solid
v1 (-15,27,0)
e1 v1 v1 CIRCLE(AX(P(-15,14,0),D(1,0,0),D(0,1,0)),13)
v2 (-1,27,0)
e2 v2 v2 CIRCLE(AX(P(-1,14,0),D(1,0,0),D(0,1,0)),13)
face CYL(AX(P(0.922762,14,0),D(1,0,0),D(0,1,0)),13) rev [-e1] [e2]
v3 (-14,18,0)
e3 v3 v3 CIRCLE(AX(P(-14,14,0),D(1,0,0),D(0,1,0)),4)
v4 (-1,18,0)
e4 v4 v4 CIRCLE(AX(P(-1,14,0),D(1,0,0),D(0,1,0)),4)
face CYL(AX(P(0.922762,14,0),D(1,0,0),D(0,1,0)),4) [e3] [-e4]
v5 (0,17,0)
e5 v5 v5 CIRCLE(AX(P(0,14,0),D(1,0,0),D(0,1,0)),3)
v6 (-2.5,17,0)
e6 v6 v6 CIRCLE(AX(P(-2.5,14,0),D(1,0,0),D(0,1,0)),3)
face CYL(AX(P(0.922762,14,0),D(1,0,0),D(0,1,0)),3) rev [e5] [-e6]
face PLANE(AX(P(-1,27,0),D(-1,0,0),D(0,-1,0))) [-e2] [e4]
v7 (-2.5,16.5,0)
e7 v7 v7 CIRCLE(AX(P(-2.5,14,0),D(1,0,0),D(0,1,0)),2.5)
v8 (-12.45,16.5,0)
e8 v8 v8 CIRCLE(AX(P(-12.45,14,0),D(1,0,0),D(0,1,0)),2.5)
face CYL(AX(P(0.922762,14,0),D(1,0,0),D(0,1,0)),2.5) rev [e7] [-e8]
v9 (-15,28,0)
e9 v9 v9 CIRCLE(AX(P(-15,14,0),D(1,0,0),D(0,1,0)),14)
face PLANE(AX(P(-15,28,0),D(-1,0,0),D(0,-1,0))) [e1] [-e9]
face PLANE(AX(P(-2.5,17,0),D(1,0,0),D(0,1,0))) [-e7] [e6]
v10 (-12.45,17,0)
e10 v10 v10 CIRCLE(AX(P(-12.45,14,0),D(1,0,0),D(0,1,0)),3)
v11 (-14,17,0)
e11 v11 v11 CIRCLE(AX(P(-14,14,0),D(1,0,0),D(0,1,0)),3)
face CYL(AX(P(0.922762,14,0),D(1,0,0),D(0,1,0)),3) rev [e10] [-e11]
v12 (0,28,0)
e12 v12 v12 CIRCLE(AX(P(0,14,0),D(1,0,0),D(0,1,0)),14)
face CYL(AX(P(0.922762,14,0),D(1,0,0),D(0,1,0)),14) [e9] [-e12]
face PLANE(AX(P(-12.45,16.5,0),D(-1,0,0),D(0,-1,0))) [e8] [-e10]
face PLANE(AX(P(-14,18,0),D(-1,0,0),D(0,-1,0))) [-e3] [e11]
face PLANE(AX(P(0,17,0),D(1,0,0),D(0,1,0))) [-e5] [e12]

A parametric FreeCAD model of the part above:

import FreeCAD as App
import Part
import Sketcher
from FreeCAD import Vector
Q = App.Units.Quantity


def add_polygon(sketch, points):
    """Adds a closed chain of lines whose ends are joined by coincident constraints."""
    first, n = sketch.GeometryCount, len(points)
    for a, b in zip(points, points[1:] + points[:1]):
        sketch.addGeometry(Part.LineSegment(App.Vector(*a, 0), App.Vector(*b, 0)), False)
    for i in range(n):
        sketch.addConstraint(Sketcher.Constraint("Coincident", first + i, 2, first + (i + 1) % n, 1))

doc = App.newDocument("Part")
params = doc.addObject("Spreadsheet::Sheet", "Params")
for row, (alias, value) in enumerate([
    ("sketch1_width", "15 mm"),
    ("sketch1_width2", "14 mm"),
    ("sketch1_width3", "13 mm"),
    ("sketch1_height", "11 mm"),
    ("sketch1_height2", "1 mm"),
    ("revolution_angle", "360 deg"),
], start=1):
    params.set(f"A{row}", alias)
    params.set(f"B{row}", "=" + value)
    params.setAlias(f"B{row}", alias)

body = doc.addObject("PartDesign::Body", "Body")

# Sketch on XY plane
sketch1 = body.newObject("Sketcher::SketchObject", "Sketch")
sketch1.AttachmentSupport = (doc.getObject("XY_Plane"), [""])
sketch1.MapMode = "FlatFace"
add_polygon(sketch1, [(0, 17), (0, 28), (-15, 28), (-15, 27), (-1, 27), (-1, 18), (-14, 18), (-14, 17), (-12.4, 17), (-12.4, 16.5), (-2.5, 16.5), (-2.5, 17)])  # lines 0-11
sketch1.addGeometry(Part.LineSegment(Vector(0, 14, 0), Vector(-15, 14, 0)), True)  # axis
sketch1.addConstraint([
    Sketcher.Constraint("Vertical", 0),
    Sketcher.Constraint("Horizontal", 1),
    Sketcher.Constraint("Vertical", 2),
    Sketcher.Constraint("Horizontal", 3),
    Sketcher.Constraint("Vertical", 4),
    Sketcher.Constraint("Horizontal", 5),
    Sketcher.Constraint("Vertical", 6),
    Sketcher.Constraint("Horizontal", 7),
    Sketcher.Constraint("Vertical", 8),
    Sketcher.Constraint("Horizontal", 9),
    Sketcher.Constraint("Vertical", 10),
    Sketcher.Constraint("Horizontal", 11),
    Sketcher.Constraint("Horizontal", 12),
    Sketcher.Constraint("PointOnObject", 0, 2, -2),
    Sketcher.Constraint("PointOnObject", 12, 1, -2),
    Sketcher.Constraint("Horizontal", 7, 2, 10, 2),
    Sketcher.Constraint("Vertical", 2, 2, 12, 2),
    Sketcher.Constraint("Equal", 2, 6),
    Sketcher.Constraint("DistanceX", 1, 2, 1, 1, Q("15 mm")),
    Sketcher.Constraint("DistanceX", 3, 1, 3, 2, Q("14 mm")),
    Sketcher.Constraint("DistanceX", 5, 2, 5, 1, Q("13 mm")),
    Sketcher.Constraint("DistanceY", 0, 1, 0, 2, Q("11 mm")),
    Sketcher.Constraint("DistanceY", 2, 2, 2, 1, Q("1 mm")),
    Sketcher.Constraint("DistanceX", 11, 1, 11, 2, Q("2.5 mm")),
    Sketcher.Constraint("DistanceY", 8, 2, 8, 1, Q("0.5 mm")),
    Sketcher.Constraint("DistanceY", -1, 1, 0, 2, Q("28 mm")),
    Sketcher.Constraint("DistanceY", -1, 1, 12, 1, Q("14 mm")),
    Sketcher.Constraint("DistanceX", 7, 1, 7, 2, Q("1.55 mm")),
])
sketch1.setExpression("Constraints[30]", "Params.sketch1_width")
sketch1.setExpression("Constraints[31]", "Params.sketch1_width2")
sketch1.setExpression("Constraints[32]", "Params.sketch1_width3")
sketch1.setExpression("Constraints[33]", "Params.sketch1_height")
sketch1.setExpression("Constraints[34]", "Params.sketch1_height2")
revolution = body.newObject("PartDesign::Revolution", "Revolution")
revolution.Profile = sketch1
revolution.ReferenceAxis = (sketch1, ["Axis0"])
revolution.setExpression("Angle", "Params.revolution_angle")

doc.recompute()
